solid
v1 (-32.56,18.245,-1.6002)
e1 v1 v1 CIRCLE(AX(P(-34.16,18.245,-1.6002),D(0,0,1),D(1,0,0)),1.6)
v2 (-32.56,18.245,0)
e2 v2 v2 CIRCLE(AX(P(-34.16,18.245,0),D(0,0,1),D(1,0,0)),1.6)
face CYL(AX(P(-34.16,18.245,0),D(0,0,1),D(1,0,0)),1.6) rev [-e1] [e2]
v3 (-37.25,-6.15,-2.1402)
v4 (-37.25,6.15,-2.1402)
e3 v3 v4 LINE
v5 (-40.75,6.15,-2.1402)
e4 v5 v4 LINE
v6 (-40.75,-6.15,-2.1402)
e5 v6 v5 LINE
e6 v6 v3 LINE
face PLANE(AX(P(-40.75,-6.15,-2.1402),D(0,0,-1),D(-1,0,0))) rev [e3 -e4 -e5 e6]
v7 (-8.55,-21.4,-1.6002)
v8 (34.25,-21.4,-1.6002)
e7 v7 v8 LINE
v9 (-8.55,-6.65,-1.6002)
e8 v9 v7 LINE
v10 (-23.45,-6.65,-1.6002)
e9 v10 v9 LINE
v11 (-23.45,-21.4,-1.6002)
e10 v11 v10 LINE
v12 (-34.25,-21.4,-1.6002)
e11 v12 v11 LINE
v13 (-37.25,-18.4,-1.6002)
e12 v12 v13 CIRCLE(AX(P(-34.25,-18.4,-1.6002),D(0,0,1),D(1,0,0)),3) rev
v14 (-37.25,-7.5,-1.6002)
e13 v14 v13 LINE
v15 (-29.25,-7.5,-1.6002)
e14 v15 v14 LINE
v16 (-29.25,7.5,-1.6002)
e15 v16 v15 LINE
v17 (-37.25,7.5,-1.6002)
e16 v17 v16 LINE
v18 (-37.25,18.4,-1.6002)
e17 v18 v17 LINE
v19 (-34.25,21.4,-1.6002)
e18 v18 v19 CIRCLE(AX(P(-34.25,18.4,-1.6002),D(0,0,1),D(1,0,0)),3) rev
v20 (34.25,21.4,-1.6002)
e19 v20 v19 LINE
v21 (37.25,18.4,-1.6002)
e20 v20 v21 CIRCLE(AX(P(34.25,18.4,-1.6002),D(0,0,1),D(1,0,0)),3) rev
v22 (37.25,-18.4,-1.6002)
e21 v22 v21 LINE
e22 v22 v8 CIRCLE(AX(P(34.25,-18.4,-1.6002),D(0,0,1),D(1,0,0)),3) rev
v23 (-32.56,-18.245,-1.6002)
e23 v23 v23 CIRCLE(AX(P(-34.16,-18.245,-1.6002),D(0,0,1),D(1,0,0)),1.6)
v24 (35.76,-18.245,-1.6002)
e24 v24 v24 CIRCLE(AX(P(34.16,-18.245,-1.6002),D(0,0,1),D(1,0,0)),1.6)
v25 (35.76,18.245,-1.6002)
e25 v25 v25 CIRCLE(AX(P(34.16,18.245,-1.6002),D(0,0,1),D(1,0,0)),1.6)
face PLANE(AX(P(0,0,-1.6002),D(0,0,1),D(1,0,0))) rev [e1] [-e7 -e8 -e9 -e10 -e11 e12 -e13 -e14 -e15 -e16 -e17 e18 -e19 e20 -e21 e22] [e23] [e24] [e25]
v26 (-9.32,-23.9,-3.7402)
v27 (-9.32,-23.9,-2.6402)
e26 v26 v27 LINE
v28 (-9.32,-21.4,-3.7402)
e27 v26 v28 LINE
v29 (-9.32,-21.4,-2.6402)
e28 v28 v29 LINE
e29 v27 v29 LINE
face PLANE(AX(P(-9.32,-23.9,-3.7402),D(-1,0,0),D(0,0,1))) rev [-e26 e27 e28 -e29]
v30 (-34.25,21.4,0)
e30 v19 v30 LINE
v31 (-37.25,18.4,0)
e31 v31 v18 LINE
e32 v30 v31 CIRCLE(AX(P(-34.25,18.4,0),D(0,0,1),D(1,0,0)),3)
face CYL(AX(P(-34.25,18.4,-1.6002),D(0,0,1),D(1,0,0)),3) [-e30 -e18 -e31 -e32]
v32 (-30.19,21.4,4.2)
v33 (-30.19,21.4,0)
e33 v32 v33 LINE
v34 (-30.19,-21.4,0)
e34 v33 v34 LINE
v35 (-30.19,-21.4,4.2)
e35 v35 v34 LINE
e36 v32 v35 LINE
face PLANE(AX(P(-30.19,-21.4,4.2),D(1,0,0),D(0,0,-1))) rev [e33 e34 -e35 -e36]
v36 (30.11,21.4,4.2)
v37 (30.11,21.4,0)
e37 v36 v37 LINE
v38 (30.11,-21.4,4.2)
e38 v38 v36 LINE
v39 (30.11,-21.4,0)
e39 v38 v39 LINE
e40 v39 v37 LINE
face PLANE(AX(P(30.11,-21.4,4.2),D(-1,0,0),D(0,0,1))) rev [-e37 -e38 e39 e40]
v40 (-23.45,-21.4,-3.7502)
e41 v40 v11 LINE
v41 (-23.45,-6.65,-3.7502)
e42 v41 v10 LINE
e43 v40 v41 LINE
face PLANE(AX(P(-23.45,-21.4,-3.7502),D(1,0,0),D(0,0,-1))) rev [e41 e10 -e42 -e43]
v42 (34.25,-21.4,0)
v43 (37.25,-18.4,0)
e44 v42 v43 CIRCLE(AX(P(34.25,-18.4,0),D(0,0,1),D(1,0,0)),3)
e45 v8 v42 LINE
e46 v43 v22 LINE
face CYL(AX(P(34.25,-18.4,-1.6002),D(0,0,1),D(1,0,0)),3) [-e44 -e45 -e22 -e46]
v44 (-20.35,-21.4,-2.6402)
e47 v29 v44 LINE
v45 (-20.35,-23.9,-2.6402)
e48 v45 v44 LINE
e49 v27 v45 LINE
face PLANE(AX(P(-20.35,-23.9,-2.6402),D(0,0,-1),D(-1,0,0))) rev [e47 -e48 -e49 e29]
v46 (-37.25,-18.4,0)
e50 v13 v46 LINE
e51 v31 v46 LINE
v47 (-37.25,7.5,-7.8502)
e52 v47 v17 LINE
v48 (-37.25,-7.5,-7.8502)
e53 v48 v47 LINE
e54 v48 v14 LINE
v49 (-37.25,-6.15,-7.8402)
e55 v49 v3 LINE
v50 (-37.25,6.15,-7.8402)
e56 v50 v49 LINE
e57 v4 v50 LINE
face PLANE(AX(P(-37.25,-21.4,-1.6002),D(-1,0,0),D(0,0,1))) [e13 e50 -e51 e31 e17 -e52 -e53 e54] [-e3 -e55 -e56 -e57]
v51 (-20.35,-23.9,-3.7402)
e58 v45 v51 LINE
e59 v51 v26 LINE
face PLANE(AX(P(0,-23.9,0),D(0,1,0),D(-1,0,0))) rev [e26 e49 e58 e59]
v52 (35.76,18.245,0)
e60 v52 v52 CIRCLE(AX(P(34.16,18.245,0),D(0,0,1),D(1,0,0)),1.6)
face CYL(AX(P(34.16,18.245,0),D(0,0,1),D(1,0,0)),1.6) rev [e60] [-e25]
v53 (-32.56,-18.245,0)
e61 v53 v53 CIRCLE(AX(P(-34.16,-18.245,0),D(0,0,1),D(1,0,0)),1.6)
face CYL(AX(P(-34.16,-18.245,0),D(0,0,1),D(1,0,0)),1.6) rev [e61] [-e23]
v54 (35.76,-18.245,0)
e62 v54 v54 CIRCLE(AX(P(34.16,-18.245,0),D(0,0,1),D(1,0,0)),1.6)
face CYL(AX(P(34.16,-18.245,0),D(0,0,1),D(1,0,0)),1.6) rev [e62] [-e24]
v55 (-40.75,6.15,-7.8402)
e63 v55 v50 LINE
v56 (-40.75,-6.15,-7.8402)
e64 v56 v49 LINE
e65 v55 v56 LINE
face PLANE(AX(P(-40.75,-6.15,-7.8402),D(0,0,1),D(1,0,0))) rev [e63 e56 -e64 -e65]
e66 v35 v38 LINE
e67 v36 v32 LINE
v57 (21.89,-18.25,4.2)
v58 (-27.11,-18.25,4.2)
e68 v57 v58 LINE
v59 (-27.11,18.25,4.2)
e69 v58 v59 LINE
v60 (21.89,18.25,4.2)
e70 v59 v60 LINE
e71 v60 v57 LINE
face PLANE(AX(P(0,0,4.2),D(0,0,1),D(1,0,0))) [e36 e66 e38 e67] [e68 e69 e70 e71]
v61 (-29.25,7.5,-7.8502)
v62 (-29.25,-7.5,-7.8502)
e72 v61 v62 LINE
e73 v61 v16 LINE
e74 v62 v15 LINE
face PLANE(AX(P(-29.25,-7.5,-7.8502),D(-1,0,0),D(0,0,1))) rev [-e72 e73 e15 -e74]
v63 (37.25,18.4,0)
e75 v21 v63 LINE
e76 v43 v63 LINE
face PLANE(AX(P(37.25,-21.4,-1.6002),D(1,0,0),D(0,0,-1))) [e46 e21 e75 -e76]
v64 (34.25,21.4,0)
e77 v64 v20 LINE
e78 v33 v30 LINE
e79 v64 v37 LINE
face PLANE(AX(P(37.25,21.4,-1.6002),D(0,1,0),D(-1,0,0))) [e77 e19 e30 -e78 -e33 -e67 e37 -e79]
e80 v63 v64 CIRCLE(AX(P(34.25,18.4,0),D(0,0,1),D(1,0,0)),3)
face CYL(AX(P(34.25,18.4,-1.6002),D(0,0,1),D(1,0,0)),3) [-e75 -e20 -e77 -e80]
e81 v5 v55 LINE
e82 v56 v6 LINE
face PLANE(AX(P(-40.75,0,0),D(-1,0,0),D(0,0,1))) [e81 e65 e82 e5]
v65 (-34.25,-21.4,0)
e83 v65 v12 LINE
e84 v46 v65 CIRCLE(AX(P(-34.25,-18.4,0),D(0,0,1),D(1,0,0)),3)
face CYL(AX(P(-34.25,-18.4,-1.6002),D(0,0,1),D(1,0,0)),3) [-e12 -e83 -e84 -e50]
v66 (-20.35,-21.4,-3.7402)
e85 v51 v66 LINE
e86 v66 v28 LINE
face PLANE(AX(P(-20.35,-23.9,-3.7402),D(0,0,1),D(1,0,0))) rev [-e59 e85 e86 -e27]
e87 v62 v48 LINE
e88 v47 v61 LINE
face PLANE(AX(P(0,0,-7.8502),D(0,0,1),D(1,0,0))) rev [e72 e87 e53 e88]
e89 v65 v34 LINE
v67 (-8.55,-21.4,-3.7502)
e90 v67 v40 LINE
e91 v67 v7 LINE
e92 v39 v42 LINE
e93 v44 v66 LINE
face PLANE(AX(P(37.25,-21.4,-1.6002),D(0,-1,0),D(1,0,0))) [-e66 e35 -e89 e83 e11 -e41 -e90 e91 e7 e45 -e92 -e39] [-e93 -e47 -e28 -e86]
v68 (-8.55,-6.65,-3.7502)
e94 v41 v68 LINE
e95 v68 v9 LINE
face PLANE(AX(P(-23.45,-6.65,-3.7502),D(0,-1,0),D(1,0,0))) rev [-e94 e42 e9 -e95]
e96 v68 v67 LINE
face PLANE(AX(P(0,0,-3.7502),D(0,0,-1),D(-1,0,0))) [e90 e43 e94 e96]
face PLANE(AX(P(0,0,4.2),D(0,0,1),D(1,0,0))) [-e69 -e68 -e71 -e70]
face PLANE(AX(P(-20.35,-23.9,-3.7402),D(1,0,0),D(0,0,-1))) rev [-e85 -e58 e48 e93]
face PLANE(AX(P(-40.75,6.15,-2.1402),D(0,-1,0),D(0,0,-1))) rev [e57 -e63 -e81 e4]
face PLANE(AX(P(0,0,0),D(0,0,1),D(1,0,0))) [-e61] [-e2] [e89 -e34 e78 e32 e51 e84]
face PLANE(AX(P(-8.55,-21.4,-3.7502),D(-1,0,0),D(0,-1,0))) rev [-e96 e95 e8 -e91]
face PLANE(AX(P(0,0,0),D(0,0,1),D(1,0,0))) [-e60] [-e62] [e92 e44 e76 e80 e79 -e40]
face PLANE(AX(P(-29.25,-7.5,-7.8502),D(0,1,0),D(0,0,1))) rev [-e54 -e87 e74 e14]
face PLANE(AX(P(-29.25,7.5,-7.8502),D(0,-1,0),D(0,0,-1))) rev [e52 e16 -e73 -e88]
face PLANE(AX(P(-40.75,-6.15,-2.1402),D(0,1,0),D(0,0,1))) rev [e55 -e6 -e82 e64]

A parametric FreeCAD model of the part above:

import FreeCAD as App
import Part
import Sketcher


def edges_at(feature, points):
    """Names of the edges that pass closest to the given points."""
    edges = feature.Shape.Edges
    near = lambda p: min(range(len(edges)), key=lambda i: edges[i].distToShape(Part.Vertex(*p))[0])
    return sorted({f"Edge{near(p) + 1}" for p in points})


def add_polygon(sketch, points):
    """Adds a closed chain of lines whose ends are joined by coincident constraints."""
    first, n = sketch.GeometryCount, len(points)
    for a, b in zip(points, points[1:] + points[:1]):
        sketch.addGeometry(Part.LineSegment(App.Vector(*a, 0), App.Vector(*b, 0)), False)
    for i in range(n):
        sketch.addConstraint(Sketcher.Constraint("Coincident", first + i, 2, first + (i + 1) % n, 1))

doc = App.newDocument("Part")
params = doc.addObject("Spreadsheet::Sheet", "Params")
for row, (alias, value) in enumerate([
    ("sketch1_width", "74.5 mm"),
    ("sketch1_height", "42.8 mm"),
    ("pad1_length", "1.6002 mm"),
    ("sketch2_width", "60.3 mm"),
    ("sketch2_height", "42.8 mm"),
    ("pad2_length", "4.2 mm"),
    ("sketch3_diameter", "3.2 mm"),
    ("hole_diameter", "3.2 mm"),
    ("fillet_radius", "3 mm"),
    ("sketch4_width", "8 mm"),
    ("sketch4_height", "15 mm"),
    ("pad3_length", "6.25 mm"),
    ("sketch5_width", "12.3 mm"),
    ("sketch5_height", "5.7 mm"),
    ("pad4_length", "3.5 mm"),
    ("sketch6_width", "14.9 mm"),
    ("sketch6_height", "14.75 mm"),
    ("pad5_length", "2.15 mm"),
    ("sketch7_height", "1.1 mm"),
    ("sketch7_width", "11.03 mm"),
    ("pad6_length", "2.5 mm"),
], start=1):
    params.set(f"A{row}", alias)
    params.set(f"B{row}", "=" + value)
    params.setAlias(f"B{row}", alias)

body = doc.addObject("PartDesign::Body", "Body")

sketch1 = body.newObject("Sketcher::SketchObject", "Sketch")
sketch1.AttachmentSupport = (doc.getObject("XY_Plane"), [""])
sketch1.MapMode = "FlatFace"
add_polygon(sketch1, [(-37.25, 21.4), (-37.25, -21.4), (37.25, -21.4), (37.25, 21.4)])
sketch1.addConstraint([
    Sketcher.Constraint("Vertical", 0),
    Sketcher.Constraint("Horizontal", 1),
    Sketcher.Constraint("Vertical", 2),
    Sketcher.Constraint("Horizontal", 3),
    Sketcher.Constraint("Symmetric", 0, 2, 2, 2, -1, 1),
    Sketcher.Constraint("DistanceX", 1, 1, 1, 2, 74.5),
    Sketcher.Constraint("DistanceY", 0, 2, 0, 1, 42.8),
])
sketch1.setExpression("Constraints[9]", "Params.sketch1_width")
sketch1.setExpression("Constraints[10]", "Params.sketch1_height")
pad1 = body.newObject("PartDesign::Pad", "Pad")
pad1.Profile = sketch1
pad1.setExpression("Length", "Params.pad1_length")
pad1.Reversed = True

sketch2 = body.newObject("Sketcher::SketchObject", "Sketch001")
sketch2.AttachmentSupport = (doc.getObject("XY_Plane"), [""])
sketch2.MapMode = "FlatFace"
add_polygon(sketch2, [(-30.19, 21.4), (-30.19, -21.4), (30.11, -21.4), (30.11, 21.4)])
sketch2.addConstraint([
    Sketcher.Constraint("Vertical", 0),
    Sketcher.Constraint("Horizontal", 1),
    Sketcher.Constraint("Vertical", 2),
    Sketcher.Constraint("Horizontal", 3),
    Sketcher.Constraint("DistanceX", 1, 1, 1, 2, 60.3),
    Sketcher.Constraint("DistanceY", 0, 2, 0, 1, 42.8),
    Sketcher.Constraint("DistanceY", 0, 2, -1, 1, 21.4),
    Sketcher.Constraint("DistanceX", 0, 2, -1, 1, 30.19),
])
sketch2.setExpression("Constraints[8]", "Params.sketch2_width")
sketch2.setExpression("Constraints[9]", "Params.sketch2_height")
pad2 = body.newObject("PartDesign::Pad", "Pad001")
pad2.Profile = sketch2
pad2.setExpression("Length", "Params.pad2_length")

sketch3 = body.newObject("Sketcher::SketchObject", "Sketch002")
sketch3.AttachmentSupport = (doc.getObject("XY_Plane"), [""])
sketch3.MapMode = "FlatFace"
sketch3.addGeometry([
    Part.Circle(App.Vector(-34.16, 18.245, 0), App.Vector(0, 0, 1), 1.6),
    Part.Circle(App.Vector(34.16, -18.245, 0), App.Vector(0, 0, 1), 1.6),
    Part.Circle(App.Vector(34.16, 18.245, 0), App.Vector(0, 0, 1), 1.6),
    Part.Circle(App.Vector(-34.16, -18.245, 0), App.Vector(0, 0, 1), 1.6),
], False)
sketch3.addConstraint([
    Sketcher.Constraint("Equal", 0, 1),
    Sketcher.Constraint("Equal", 1, 2),
    Sketcher.Constraint("Equal", 2, 3),
    Sketcher.Constraint("Symmetric", 0, 3, 1, 3, -1, 1),
    Sketcher.Constraint("Symmetric", 2, 3, 3, 3, -1, 1),
    Sketcher.Constraint("Symmetric", 0, 3, 2, 3, -2),
    Sketcher.Constraint("Diameter", 0, 3.2),
    Sketcher.Constraint("DistanceX", 0, 3, -1, 1, 34.16),
    Sketcher.Constraint("DistanceY", 1, 3, 0, 3, 36.49),
])
sketch3.setExpression("Constraints[6]", "Params.sketch3_diameter")
doc.recompute()
hole = body.newObject("PartDesign::Hole", "Hole")
hole.Profile = sketch3
hole.ThreadType = "None"
hole.setExpression("Diameter", "Params.hole_diameter")
hole.DepthType = "ThroughAll"
doc.recompute()

fillet = body.newObject("PartDesign::Fillet", "Fillet")
fillet.Base = (hole, edges_at(hole, [
    (37.25, 21.4, -0.8),
    (37.25, -21.4, -0.8),
    (-37.25, -21.4, -0.8),
    (-37.25, 21.4, -0.8),
]))
fillet.setExpression("Radius", "Params.fillet_radius")

sketch4 = body.newObject("Sketcher::SketchObject", "Sketch003")
sketch4.AttachmentSupport = (doc.getObject("XY_Plane"), [""])
sketch4.MapMode = "FlatFace"
sketch4.AttachmentOffset = App.Placement(App.Vector(0, 0, -1.6002), App.Rotation())
add_polygon(sketch4, [(-29.25, 7.5), (-29.25, -7.5), (-37.25, -7.5), (-37.25, 7.5)])
sketch4.addConstraint([
    Sketcher.Constraint("Vertical", 0),
    Sketcher.Constraint("Horizontal", 1),
    Sketcher.Constraint("Vertical", 2),
    Sketcher.Constraint("Horizontal", 3),
    Sketcher.Constraint("DistanceX", 1, 2, 1, 1, 8.0),
    Sketcher.Constraint("DistanceY", 0, 2, 0, 1, 15.0),
    Sketcher.Constraint("DistanceY", 0, 2, -1, 1, 7.5),
    Sketcher.Constraint("DistanceX", 0, 2, -1, 1, 29.25),
])
sketch4.setExpression("Constraints[8]", "Params.sketch4_width")
sketch4.setExpression("Constraints[9]", "Params.sketch4_height")
pad3 = body.newObject("PartDesign::Pad", "Pad002")
pad3.Profile = sketch4
pad3.setExpression("Length", "Params.pad3_length")
pad3.Reversed = True

sketch5 = body.newObject("Sketcher::SketchObject", "Sketch004")
sketch5.AttachmentSupport = (doc.getObject("YZ_Plane"), [""])
sketch5.MapMode = "FlatFace"
sketch5.AttachmentOffset = App.Placement(App.Vector(0, 0, -37.25), App.Rotation())
add_polygon(sketch5, [(6.15, -7.8402), (-6.15, -7.8402), (-6.15, -2.1402), (6.15, -2.1402)])
sketch5.addConstraint([
    Sketcher.Constraint("Horizontal", 0),
    Sketcher.Constraint("Vertical", 1),
    Sketcher.Constraint("Horizontal", 2),
    Sketcher.Constraint("Vertical", 3),
    Sketcher.Constraint("DistanceX", 0, 2, 0, 1, 12.3),
    Sketcher.Constraint("DistanceY", 1, 1, 1, 2, 5.7),
    Sketcher.Constraint("DistanceX", 0, 2, -1, 1, 6.15),
    Sketcher.Constraint("DistanceY", 0, 2, -1, 1, 7.8402),
])
sketch5.setExpression("Constraints[8]", "Params.sketch5_width")
sketch5.setExpression("Constraints[9]", "Params.sketch5_height")
pad4 = body.newObject("PartDesign::Pad", "Pad003")
pad4.Profile = sketch5
pad4.setExpression("Length", "Params.pad4_length")
pad4.Reversed = True

sketch6 = body.newObject("Sketcher::SketchObject", "Sketch005")
sketch6.AttachmentSupport = (doc.getObject("XY_Plane"), [""])
sketch6.MapMode = "FlatFace"
sketch6.AttachmentOffset = App.Placement(App.Vector(0, 0, -1.6002), App.Rotation())
add_polygon(sketch6, [(-8.55, -6.65), (-8.55, -21.4), (-23.45, -21.4), (-23.45, -6.65)])
sketch6.addConstraint([
    Sketcher.Constraint("Vertical", 0),
    Sketcher.Constraint("Horizontal", 1),
    Sketcher.Constraint("Vertical", 2),
    Sketcher.Constraint("Horizontal", 3),
    Sketcher.Constraint("DistanceX", 1, 2, 1, 1, 14.9),
    Sketcher.Constraint("DistanceY", 0, 2, 0, 1, 14.75),
    Sketcher.Constraint("DistanceY", 0, 2, -1, 1, 21.4),
    Sketcher.Constraint("DistanceX", 0, 2, -1, 1, 8.55),
])
sketch6.setExpression("Constraints[8]", "Params.sketch6_width")
sketch6.setExpression("Constraints[9]", "Params.sketch6_height")
pad5 = body.newObject("PartDesign::Pad", "Pad004")
pad5.Profile = sketch6
pad5.setExpression("Length", "Params.pad5_length")
pad5.Reversed = True

sketch7 = body.newObject("Sketcher::SketchObject", "Sketch006")
sketch7.AttachmentSupport = (doc.getObject("XZ_Plane"), [""])
sketch7.MapMode = "FlatFace"
sketch7.AttachmentOffset = App.Placement(App.Vector(0, 0, 21.4), App.Rotation())
add_polygon(sketch7, [(-20.35, -2.6402), (-20.35, -3.7402), (-9.32, -3.7402), (-9.32, -2.6402)])
sketch7.addConstraint([
    Sketcher.Constraint("Vertical", 0),
    Sketcher.Constraint("Horizontal", 1),
    Sketcher.Constraint("Vertical", 2),
    Sketcher.Constraint("Horizontal", 3),
    Sketcher.Constraint("DistanceY", 0, 2, 0, 1, 1.1),
    Sketcher.Constraint("DistanceX", 1, 1, 1, 2, 11.03),
    Sketcher.Constraint("DistanceX", 0, 2, -1, 1, 20.35),
    Sketcher.Constraint("DistanceY", 0, 2, -1, 1, 3.7402),
])
sketch7.setExpression("Constraints[8]", "Params.sketch7_height")
sketch7.setExpression("Constraints[9]", "Params.sketch7_width")
pad6 = body.newObject("PartDesign::Pad", "Pad005")
pad6.Profile = sketch7
pad6.setExpression("Length", "Params.pad6_length")

doc.recompute()
